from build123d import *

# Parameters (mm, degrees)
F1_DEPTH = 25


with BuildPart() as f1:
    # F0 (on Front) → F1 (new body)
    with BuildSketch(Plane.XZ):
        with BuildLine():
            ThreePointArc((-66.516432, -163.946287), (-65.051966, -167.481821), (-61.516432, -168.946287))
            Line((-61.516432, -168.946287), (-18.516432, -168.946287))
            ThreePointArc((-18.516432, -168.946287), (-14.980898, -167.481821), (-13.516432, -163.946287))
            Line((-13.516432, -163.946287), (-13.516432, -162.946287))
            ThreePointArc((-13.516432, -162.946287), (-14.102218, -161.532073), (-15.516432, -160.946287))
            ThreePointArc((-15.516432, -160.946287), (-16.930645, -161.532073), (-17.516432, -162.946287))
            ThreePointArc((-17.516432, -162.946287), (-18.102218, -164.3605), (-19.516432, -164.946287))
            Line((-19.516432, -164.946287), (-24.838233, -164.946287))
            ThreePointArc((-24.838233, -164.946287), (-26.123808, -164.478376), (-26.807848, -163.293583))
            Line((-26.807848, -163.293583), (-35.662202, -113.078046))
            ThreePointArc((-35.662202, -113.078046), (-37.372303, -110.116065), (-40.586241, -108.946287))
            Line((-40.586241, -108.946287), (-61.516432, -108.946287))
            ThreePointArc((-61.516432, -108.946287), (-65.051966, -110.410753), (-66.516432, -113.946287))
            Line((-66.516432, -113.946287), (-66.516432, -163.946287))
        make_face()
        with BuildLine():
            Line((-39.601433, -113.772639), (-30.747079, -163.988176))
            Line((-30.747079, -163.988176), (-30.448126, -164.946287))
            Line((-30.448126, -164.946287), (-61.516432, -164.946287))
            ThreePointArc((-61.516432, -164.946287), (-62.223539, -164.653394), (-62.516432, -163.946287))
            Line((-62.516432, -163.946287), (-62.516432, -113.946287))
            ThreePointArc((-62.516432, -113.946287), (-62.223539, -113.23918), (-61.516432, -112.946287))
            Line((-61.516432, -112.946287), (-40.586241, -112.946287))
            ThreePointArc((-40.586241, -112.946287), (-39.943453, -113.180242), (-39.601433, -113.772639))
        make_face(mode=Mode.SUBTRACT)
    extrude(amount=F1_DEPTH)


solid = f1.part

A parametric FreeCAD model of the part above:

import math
import FreeCAD as App
import Part
import Sketcher
from FreeCAD import Vector
Q = App.Units.Quantity

doc = App.newDocument("Part")
body = doc.addObject("PartDesign::Body", "Body")

sketch1 = body.newObject("Sketcher::SketchObject", "Sketch")
sketch1.AttachmentSupport = (doc.getObject("XZ_Plane"), [""])
sketch1.MapMode = "FlatFace"
sketch1.addGeometry(Part.ArcOfCircle(Part.Circle(Vector(-61.5, -163.9, 0), Vector(0, 0, 1), 5), math.radians(180), math.radians(270)), False)
sketch1.addGeometry(Part.LineSegment(Vector(-61.5, -168.9, 0), Vector(-18.5, -168.9, 0)), False)
sketch1.addGeometry(Part.ArcOfCircle(Part.Circle(Vector(-18.5, -163.9, 0), Vector(0, 0, 1), 5), math.radians(-90), math.radians(0)), False)
sketch1.addGeometry(Part.LineSegment(Vector(-13.5, -163.9, 0), Vector(-13.5, -162.9, 0)), False)
sketch1.addGeometry(Part.ArcOfCircle(Part.Circle(Vector(-15.5, -162.9, 0), Vector(0, 0, 1), 2), math.radians(0), math.radians(90)), False)
sketch1.addGeometry(Part.ArcOfCircle(Part.Circle(Vector(-15.5, -162.9, 0), Vector(0, 0, 1), 2), math.radians(90), math.radians(180)), False)
sketch1.addGeometry(Part.ArcOfCircle(Part.Circle(Vector(-19.5, -162.9, 0), Vector(0, 0, 1), 2), math.radians(-90), math.radians(0)), False)
sketch1.addGeometry(Part.LineSegment(Vector(-19.5, -164.9, 0), Vector(-24.8, -164.9, 0)), False)
sketch1.addGeometry(Part.ArcOfCircle(Part.Circle(Vector(-24.8, -162.9, 0), Vector(0, 0, 1), 2), math.radians(-170), math.radians(-90)), False)
sketch1.addGeometry(Part.LineSegment(Vector(-26.8, -163.3, 0), Vector(-35.7, -113.1, 0)), False)
sketch1.addGeometry(Part.ArcOfCircle(Part.Circle(Vector(-40.6, -113.9, 0), Vector(0, 0, 1), 5), math.radians(10), math.radians(90)), False)
sketch1.addGeometry(Part.LineSegment(Vector(-40.6, -108.9, 0), Vector(-61.5, -108.9, 0)), False)
sketch1.addGeometry(Part.ArcOfCircle(Part.Circle(Vector(-61.5, -113.9, 0), Vector(0, 0, 1), 5), math.radians(90), math.radians(180)), False)
sketch1.addGeometry(Part.LineSegment(Vector(-66.5, -113.9, 0), Vector(-66.5, -163.9, 0)), False)
sketch1.addGeometry(Part.ArcOfCircle(Part.Circle(Vector(-40.6, -113.9, 0), Vector(0, 0, 1), 1), math.radians(10), math.radians(90)), False)
sketch1.addGeometry(Part.LineSegment(Vector(-39.6, -113.8, 0), Vector(-30.7, -164, 0)), False)
sketch1.addGeometry(Part.LineSegment(Vector(-30.7, -164, 0), Vector(-30.4, -164.9, 0)), False)
sketch1.addGeometry(Part.LineSegment(Vector(-30.4, -164.9, 0), Vector(-61.5, -164.9, 0)), False)
sketch1.addGeometry(Part.ArcOfCircle(Part.Circle(Vector(-61.5, -163.9, 0), Vector(0, 0, 1), 1), math.radians(180), math.radians(270)), False)
sketch1.addGeometry(Part.LineSegment(Vector(-62.5, -163.9, 0), Vector(-62.5, -113.9, 0)), False)
sketch1.addGeometry(Part.ArcOfCircle(Part.Circle(Vector(-61.5, -113.9, 0), Vector(0, 0, 1), 1), math.radians(90), math.radians(180)), False)
sketch1.addGeometry(Part.LineSegment(Vector(-61.5, -112.9, 0), Vector(-40.6, -112.9, 0)), False)
sketch1.addConstraint(Sketcher.Constraint("Tangent", 0, 2, 1, 1))
sketch1.addConstraint(Sketcher.Constraint("Tangent", 1, 2, 2, 1))
sketch1.addConstraint(Sketcher.Constraint("Tangent", 2, 2, 3, 1))
sketch1.addConstraint(Sketcher.Constraint("Tangent", 3, 2, 4, 1))
sketch1.addConstraint(Sketcher.Constraint("Tangent", 4, 2, 5, 1))
sketch1.addConstraint(Sketcher.Constraint("Tangent", 5, 2, 6, 2))
sketch1.addConstraint(Sketcher.Constraint("Tangent", 6, 1, 7, 1))
sketch1.addConstraint(Sketcher.Constraint("Tangent", 7, 2, 8, 2))
sketch1.addConstraint(Sketcher.Constraint("Tangent", 8, 1, 9, 1))
sketch1.addConstraint(Sketcher.Constraint("Tangent", 9, 2, 10, 1))
sketch1.addConstraint(Sketcher.Constraint("Tangent", 10, 2, 11, 1))
sketch1.addConstraint(Sketcher.Constraint("Tangent", 11, 2, 12, 1))
sketch1.addConstraint(Sketcher.Constraint("Tangent", 12, 2, 13, 1))
sketch1.addConstraint(Sketcher.Constraint("Tangent", 13, 2, 0, 1))
sketch1.addConstraint(Sketcher.Constraint("Tangent", 14, 1, 15, 1))
sketch1.addConstraint(Sketcher.Constraint("Coincident", 15, 2, 16, 1))
sketch1.addConstraint(Sketcher.Constraint("Coincident", 16, 2, 17, 1))
sketch1.addConstraint(Sketcher.Constraint("Tangent", 17, 2, 18, 2))
sketch1.addConstraint(Sketcher.Constraint("Tangent", 18, 1, 19, 1))
sketch1.addConstraint(Sketcher.Constraint("Tangent", 19, 2, 20, 2))
sketch1.addConstraint(Sketcher.Constraint("Tangent", 20, 1, 21, 1))
sketch1.addConstraint(Sketcher.Constraint("Tangent", 21, 2, 14, 2))
sketch1.addConstraint(Sketcher.Constraint("Horizontal", 1))
sketch1.addConstraint(Sketcher.Constraint("Vertical", 3))
sketch1.addConstraint(Sketcher.Constraint("Horizontal", 7))
sketch1.addConstraint(Sketcher.Constraint("Horizontal", 11))
sketch1.addConstraint(Sketcher.Constraint("Vertical", 13))
sketch1.addConstraint(Sketcher.Constraint("Horizontal", 17))
sketch1.addConstraint(Sketcher.Constraint("Vertical", 19))
sketch1.addConstraint(Sketcher.Constraint("Horizontal", 21))
sketch1.addConstraint(Sketcher.Constraint("Coincident", 14, 3, 10, 3))
sketch1.addConstraint(Sketcher.Constraint("Coincident", 18, 3, 0, 3))
sketch1.addConstraint(Sketcher.Constraint("Coincident", 20, 3, 12, 3))
sketch1.addConstraint(Sketcher.Constraint("Equal", 0, 2))
sketch1.addConstraint(Sketcher.Constraint("Equal", 4, 5))
sketch1.addConstraint(Sketcher.Constraint("Equal", 5, 6))
sketch1.addConstraint(Sketcher.Constraint("Equal", 6, 8))
sketch1.addConstraint(Sketcher.Constraint("Equal", 2, 10))
sketch1.addConstraint(Sketcher.Constraint("Equal", 10, 12))
sketch1.addConstraint(Sketcher.Constraint("Parallel", 9, 15))
sketch1.addConstraint(Sketcher.Constraint("Horizontal", 5, 3, 6, 3))
sketch1.addConstraint(Sketcher.Constraint("Horizontal", 7, 2, 16, 2))
sketch1.addConstraint(Sketcher.Constraint("Vertical", 5, 3, 4, 2))
sketch1.addConstraint(Sketcher.Constraint("Equal", 9, 15))
sketch1.addConstraint(Sketcher.Constraint("Radius", 0, 5.0))
sketch1.addConstraint(Sketcher.Constraint("Radius", 4, 1.999999))
sketch1.addConstraint(Sketcher.Constraint("Radius", 14, 0.999998))
sketch1.addConstraint(Sketcher.Constraint("DistanceX", 1, 1, 1, 2, 43.0))
sketch1.addConstraint(Sketcher.Constraint("DistanceY", 13, 2, 13, 1, 50.0))
sketch1.addConstraint(Sketcher.Constraint("Angle", 9, Q("100 deg")))
sketch1.addConstraint(Sketcher.Constraint("DistanceX", 7, 2, 7, 1, 5.321801))
sketch1.addConstraint(Sketcher.Constraint("Distance", 16, 1.003668))
sketch1.addConstraint(Sketcher.Constraint("DistanceX", 2, 3, -1, 1, 18.516432))
sketch1.addConstraint(Sketcher.Constraint("DistanceY", 8, 3, -1, 1, 162.946288))
pad1 = body.newObject("PartDesign::Pad", "Pad")
pad1.Profile = sketch1
pad1.Length = 25

doc.recompute()
